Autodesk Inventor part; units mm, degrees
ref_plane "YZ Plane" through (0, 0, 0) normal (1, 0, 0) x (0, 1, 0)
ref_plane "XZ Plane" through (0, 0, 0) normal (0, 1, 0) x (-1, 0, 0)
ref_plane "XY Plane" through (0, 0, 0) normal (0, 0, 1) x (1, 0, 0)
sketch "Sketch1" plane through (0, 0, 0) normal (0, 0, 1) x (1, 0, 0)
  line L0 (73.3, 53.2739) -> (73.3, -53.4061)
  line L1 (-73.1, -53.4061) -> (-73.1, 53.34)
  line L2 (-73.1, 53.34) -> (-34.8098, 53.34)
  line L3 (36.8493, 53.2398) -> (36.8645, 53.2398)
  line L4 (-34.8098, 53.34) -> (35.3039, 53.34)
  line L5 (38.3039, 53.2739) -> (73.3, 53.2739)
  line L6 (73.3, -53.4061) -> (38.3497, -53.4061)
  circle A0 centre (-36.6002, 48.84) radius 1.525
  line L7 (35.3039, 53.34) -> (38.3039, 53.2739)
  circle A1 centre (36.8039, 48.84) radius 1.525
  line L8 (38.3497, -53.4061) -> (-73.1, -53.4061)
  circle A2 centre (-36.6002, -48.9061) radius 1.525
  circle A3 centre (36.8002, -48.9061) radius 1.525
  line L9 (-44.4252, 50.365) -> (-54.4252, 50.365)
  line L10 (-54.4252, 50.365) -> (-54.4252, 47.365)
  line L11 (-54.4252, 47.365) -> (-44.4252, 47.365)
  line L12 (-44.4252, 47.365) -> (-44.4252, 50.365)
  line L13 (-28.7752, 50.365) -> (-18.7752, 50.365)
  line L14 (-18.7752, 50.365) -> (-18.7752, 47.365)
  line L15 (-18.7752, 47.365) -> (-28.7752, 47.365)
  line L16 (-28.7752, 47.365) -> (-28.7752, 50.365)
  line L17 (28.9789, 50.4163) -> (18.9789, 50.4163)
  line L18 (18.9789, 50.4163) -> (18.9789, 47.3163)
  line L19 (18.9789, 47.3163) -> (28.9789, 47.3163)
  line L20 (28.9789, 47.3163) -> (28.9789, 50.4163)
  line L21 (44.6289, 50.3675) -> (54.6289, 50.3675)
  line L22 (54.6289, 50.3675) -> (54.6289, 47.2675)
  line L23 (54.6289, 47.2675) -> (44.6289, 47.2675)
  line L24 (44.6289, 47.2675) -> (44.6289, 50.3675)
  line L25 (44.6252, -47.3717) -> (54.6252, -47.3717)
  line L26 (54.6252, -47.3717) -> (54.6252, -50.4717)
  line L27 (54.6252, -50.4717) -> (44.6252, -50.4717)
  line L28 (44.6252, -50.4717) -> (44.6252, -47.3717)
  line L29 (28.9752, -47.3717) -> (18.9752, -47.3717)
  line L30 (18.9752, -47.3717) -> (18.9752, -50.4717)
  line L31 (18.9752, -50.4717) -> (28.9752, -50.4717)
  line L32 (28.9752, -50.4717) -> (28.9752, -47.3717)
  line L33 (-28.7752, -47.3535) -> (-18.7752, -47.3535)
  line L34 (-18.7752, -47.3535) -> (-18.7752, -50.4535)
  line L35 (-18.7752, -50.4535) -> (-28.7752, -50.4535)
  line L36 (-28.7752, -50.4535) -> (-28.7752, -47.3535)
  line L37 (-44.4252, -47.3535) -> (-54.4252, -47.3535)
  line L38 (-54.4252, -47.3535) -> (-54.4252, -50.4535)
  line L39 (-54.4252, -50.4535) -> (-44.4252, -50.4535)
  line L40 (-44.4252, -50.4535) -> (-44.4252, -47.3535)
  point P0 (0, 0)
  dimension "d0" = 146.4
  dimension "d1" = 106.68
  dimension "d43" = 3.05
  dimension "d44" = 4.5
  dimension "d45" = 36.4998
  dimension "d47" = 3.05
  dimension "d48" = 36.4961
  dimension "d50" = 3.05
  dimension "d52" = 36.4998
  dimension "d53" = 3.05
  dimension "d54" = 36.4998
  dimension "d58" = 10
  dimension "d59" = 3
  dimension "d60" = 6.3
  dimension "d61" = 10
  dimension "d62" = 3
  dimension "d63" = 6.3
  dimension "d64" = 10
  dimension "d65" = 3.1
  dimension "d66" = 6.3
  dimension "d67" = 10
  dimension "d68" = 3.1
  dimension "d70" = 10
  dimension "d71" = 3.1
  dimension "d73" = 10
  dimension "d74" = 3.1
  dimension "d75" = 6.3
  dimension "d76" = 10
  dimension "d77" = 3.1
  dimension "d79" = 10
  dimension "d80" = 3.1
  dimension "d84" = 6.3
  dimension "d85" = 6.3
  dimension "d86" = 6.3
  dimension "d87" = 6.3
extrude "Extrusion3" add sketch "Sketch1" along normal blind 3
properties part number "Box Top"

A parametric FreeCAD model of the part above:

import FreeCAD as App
import Part
import Sketcher

V = App.Vector
Q = App.Units.Quantity

doc = App.newDocument("Part")
body = doc.addObject("PartDesign::Body", "Body")

sketch1 = doc.addObject("Sketcher::SketchObject", "Sketch")
body.addObject(sketch1)
sketch1.AttachmentSupport = (doc.XY_Plane, [""])
sketch1.MapMode = "FlatFace"
sketch1.addGeometry([
    Part.LineSegment(V(73.3, -53.4, 0), V(73.3, 53.3, 0)),
    Part.LineSegment(V(73.3, 53.3, 0), V(38.3, 53.3, 0)),
    Part.LineSegment(V(38.3, 53.3, 0), V(35.3, 53.3, 0)),
    Part.LineSegment(V(35.3, 53.3, 0), V(-73.1, 53.3, 0)),
    Part.LineSegment(V(-73.1, 53.3, 0), V(-73.1, -53.4, 0)),
    Part.LineSegment(V(-73.1, -53.4, 0), V(73.3, -53.4, 0)),
    Part.LineSegment(V(-54.4, -47.4, 0), V(-44.4, -47.4, 0)),
    Part.LineSegment(V(-44.4, -47.4, 0), V(-44.4, -50.5, 0)),
    Part.LineSegment(V(-44.4, -50.5, 0), V(-54.4, -50.5, 0)),
    Part.LineSegment(V(-54.4, -50.5, 0), V(-54.4, -47.4, 0)),
    Part.Circle(V(-36.6, -48.9, 0), V(0, 0, 1), 1.5),
    Part.LineSegment(V(-28.8, -50.5, 0), V(-28.8, -47.4, 0)),
    Part.LineSegment(V(-28.8, -47.4, 0), V(-18.8, -47.4, 0)),
    Part.LineSegment(V(-18.8, -47.4, 0), V(-18.8, -50.5, 0)),
    Part.LineSegment(V(-18.8, -50.5, 0), V(-28.8, -50.5, 0)),
    Part.LineSegment(V(19, -47.4, 0), V(29, -47.4, 0)),
    Part.LineSegment(V(29, -47.4, 0), V(29, -50.5, 0)),
    Part.LineSegment(V(29, -50.5, 0), V(19, -50.5, 0)),
    Part.LineSegment(V(19, -50.5, 0), V(19, -47.4, 0)),
    Part.Circle(V(36.8, -48.9, 0), V(0, 0, 1), 1.5),
    Part.LineSegment(V(44.6, -50.5, 0), V(44.6, -47.4, 0)),
    Part.LineSegment(V(44.6, -47.4, 0), V(54.6, -47.4, 0)),
    Part.LineSegment(V(54.6, -47.4, 0), V(54.6, -50.5, 0)),
    Part.LineSegment(V(54.6, -50.5, 0), V(44.6, -50.5, 0)),
    Part.LineSegment(V(-54.4, 50.4, 0), V(-44.4, 50.4, 0)),
    Part.LineSegment(V(-44.4, 50.4, 0), V(-44.4, 47.4, 0)),
    Part.LineSegment(V(-44.4, 47.4, 0), V(-54.4, 47.4, 0)),
    Part.LineSegment(V(-54.4, 47.4, 0), V(-54.4, 50.4, 0)),
    Part.Circle(V(-36.6, 48.8, 0), V(0, 0, 1), 1.5),
    Part.LineSegment(V(-28.8, 47.4, 0), V(-28.8, 50.4, 0)),
    Part.LineSegment(V(-28.8, 50.4, 0), V(-18.8, 50.4, 0)),
    Part.LineSegment(V(-18.8, 50.4, 0), V(-18.8, 47.4, 0)),
    Part.LineSegment(V(-18.8, 47.4, 0), V(-28.8, 47.4, 0)),
    Part.LineSegment(V(19, 50.4, 0), V(29, 50.4, 0)),
    Part.LineSegment(V(29, 50.4, 0), V(29, 47.3, 0)),
    Part.LineSegment(V(29, 47.3, 0), V(19, 47.3, 0)),
    Part.LineSegment(V(19, 47.3, 0), V(19, 50.4, 0)),
    Part.Circle(V(36.8, 48.8, 0), V(0, 0, 1), 1.5),
    Part.LineSegment(V(44.6, 47.3, 0), V(44.6, 50.4, 0)),
    Part.LineSegment(V(44.6, 50.4, 0), V(54.6, 50.4, 0)),
    Part.LineSegment(V(54.6, 50.4, 0), V(54.6, 47.3, 0)),
    Part.LineSegment(V(54.6, 47.3, 0), V(44.6, 47.3, 0)),
], False)
sketch1.addConstraint([
    Sketcher.Constraint("Coincident", 0, 2, 1, 1),
    Sketcher.Constraint("Coincident", 1, 2, 2, 1),
    Sketcher.Constraint("Coincident", 2, 2, 3, 1),
    Sketcher.Constraint("Coincident", 3, 2, 4, 1),
    Sketcher.Constraint("Coincident", 4, 2, 5, 1),
    Sketcher.Constraint("Coincident", 5, 2, 0, 1),
    Sketcher.Constraint("Coincident", 6, 2, 7, 1),
    Sketcher.Constraint("Coincident", 7, 2, 8, 1),
    Sketcher.Constraint("Coincident", 8, 2, 9, 1),
    Sketcher.Constraint("Coincident", 9, 2, 6, 1),
    Sketcher.Constraint("Coincident", 11, 2, 12, 1),
    Sketcher.Constraint("Coincident", 12, 2, 13, 1),
    Sketcher.Constraint("Coincident", 13, 2, 14, 1),
    Sketcher.Constraint("Coincident", 14, 2, 11, 1),
    Sketcher.Constraint("Coincident", 15, 2, 16, 1),
    Sketcher.Constraint("Coincident", 16, 2, 17, 1),
    Sketcher.Constraint("Coincident", 17, 2, 18, 1),
    Sketcher.Constraint("Coincident", 18, 2, 15, 1),
    Sketcher.Constraint("Coincident", 20, 2, 21, 1),
    Sketcher.Constraint("Coincident", 21, 2, 22, 1),
    Sketcher.Constraint("Coincident", 22, 2, 23, 1),
    Sketcher.Constraint("Coincident", 23, 2, 20, 1),
    Sketcher.Constraint("Coincident", 24, 2, 25, 1),
    Sketcher.Constraint("Coincident", 25, 2, 26, 1),
    Sketcher.Constraint("Coincident", 26, 2, 27, 1),
    Sketcher.Constraint("Coincident", 27, 2, 24, 1),
    Sketcher.Constraint("Coincident", 29, 2, 30, 1),
    Sketcher.Constraint("Coincident", 30, 2, 31, 1),
    Sketcher.Constraint("Coincident", 31, 2, 32, 1),
    Sketcher.Constraint("Coincident", 32, 2, 29, 1),
    Sketcher.Constraint("Coincident", 33, 2, 34, 1),
    Sketcher.Constraint("Coincident", 34, 2, 35, 1),
    Sketcher.Constraint("Coincident", 35, 2, 36, 1),
    Sketcher.Constraint("Coincident", 36, 2, 33, 1),
    Sketcher.Constraint("Coincident", 38, 2, 39, 1),
    Sketcher.Constraint("Coincident", 39, 2, 40, 1),
    Sketcher.Constraint("Coincident", 40, 2, 41, 1),
    Sketcher.Constraint("Coincident", 41, 2, 38, 1),
    Sketcher.Constraint("Vertical", 0),
    Sketcher.Constraint("Horizontal", 1),
    Sketcher.Constraint("Horizontal", 3),
    Sketcher.Constraint("Vertical", 4),
    Sketcher.Constraint("Horizontal", 5),
    Sketcher.Constraint("Horizontal", 6),
    Sketcher.Constraint("Vertical", 7),
    Sketcher.Constraint("Horizontal", 8),
    Sketcher.Constraint("Vertical", 9),
    Sketcher.Constraint("Vertical", 11),
    Sketcher.Constraint("Horizontal", 12),
    Sketcher.Constraint("Vertical", 13),
    Sketcher.Constraint("Horizontal", 14),
    Sketcher.Constraint("Horizontal", 15),
    Sketcher.Constraint("Vertical", 16),
    Sketcher.Constraint("Horizontal", 17),
    Sketcher.Constraint("Vertical", 18),
    Sketcher.Constraint("Vertical", 20),
    Sketcher.Constraint("Horizontal", 21),
    Sketcher.Constraint("Vertical", 22),
    Sketcher.Constraint("Horizontal", 23),
    Sketcher.Constraint("Horizontal", 24),
    Sketcher.Constraint("Vertical", 25),
    Sketcher.Constraint("Horizontal", 26),
    Sketcher.Constraint("Vertical", 27),
    Sketcher.Constraint("Vertical", 29),
    Sketcher.Constraint("Horizontal", 30),
    Sketcher.Constraint("Vertical", 31),
    Sketcher.Constraint("Horizontal", 32),
    Sketcher.Constraint("Horizontal", 33),
    Sketcher.Constraint("Vertical", 34),
    Sketcher.Constraint("Horizontal", 35),
    Sketcher.Constraint("Vertical", 36),
    Sketcher.Constraint("Vertical", 38),
    Sketcher.Constraint("Horizontal", 39),
    Sketcher.Constraint("Vertical", 40),
    Sketcher.Constraint("Horizontal", 41),
    Sketcher.Constraint("Equal", 10, 19),
    Sketcher.Constraint("Equal", 19, 28),
    Sketcher.Constraint("Equal", 28, 37),
    Sketcher.Constraint("Horizontal", 10, 3, 19, 3),
    Sketcher.Constraint("Horizontal", 28, 3, 37, 3),
    Sketcher.Constraint("Horizontal", 9, 2, 11, 2),
    Sketcher.Constraint("Horizontal", 8, 2, 13, 2),
    Sketcher.Constraint("Horizontal", 18, 2, 20, 2),
    Sketcher.Constraint("Horizontal", 17, 2, 22, 2),
    Sketcher.Constraint("Horizontal", 27, 2, 29, 2),
    Sketcher.Constraint("Horizontal", 26, 2, 31, 2),
    Sketcher.Constraint("Vertical", 10, 3, 28, 3),
    Sketcher.Constraint("Vertical", 7, 2, 24, 2),
    Sketcher.Constraint("Vertical", 9, 2, 26, 2),
    Sketcher.Constraint("Vertical", 14, 2, 29, 2),
    Sketcher.Constraint("Vertical", 13, 2, 30, 2),
    Sketcher.Constraint("Equal", 8, 12),
    Sketcher.Constraint("Equal", 14, 15),
    Sketcher.Constraint("Equal", 17, 21),
    Sketcher.Constraint("Equal", 32, 33),
    Sketcher.Constraint("Equal", 35, 39),
    Sketcher.Constraint("Equal", 13, 16),
    Sketcher.Constraint("Equal", 22, 34),
    Sketcher.Constraint("Equal", 36, 38),
    Sketcher.Constraint("Diameter", 10, Q("3.05 mm")),
    Sketcher.Constraint("DistanceX", 6, 1, 6, 2, Q("10 mm")),
    Sketcher.Constraint("DistanceY", 25, 2, 25, 1, Q("3 mm")),
    Sketcher.Constraint("DistanceX", 5, 1, 5, 2, Q("146.4 mm")),
    Sketcher.Constraint("DistanceY", 7, 2, 7, 1, Q("3.1 mm")),
    Sketcher.Constraint("DistanceX", 2, 2, 1, 2, Q("3 mm")),
    Sketcher.Constraint("DistanceY", 0, 1, 0, 2, Q("106.68 mm")),
    Sketcher.Constraint("DistanceY", 37, 3, 2, 2, Q("4.5 mm")),
    Sketcher.Constraint("DistanceY", 4, 2, 10, 3, Q("4.5 mm")),
    Sketcher.Constraint("DistanceX", 37, 3, 0, 2, Q("36.496 mm")),
    Sketcher.Constraint("DistanceX", -1, 1, 0, 2, Q("73.3 mm")),
    Sketcher.Constraint("DistanceX", 19, 3, 0, 2, Q("36.4998 mm")),
    Sketcher.Constraint("DistanceX", 37, 3, 1, 2, Q("1.5 mm")),
    Sketcher.Constraint("DistanceX", 3, 2, 28, 3, Q("36.4998 mm")),
    Sketcher.Constraint("DistanceY", 4, 2, 4, 1, Q("106.746 mm")),
    Sketcher.Constraint("DistanceY", -1, 1, 28, 3, Q("48.84 mm")),
    Sketcher.Constraint("DistanceX", 6, 2, 11, 2, Q("15.65 mm")),
    Sketcher.Constraint("DistanceX", 15, 2, 20, 2, Q("15.65 mm")),
    Sketcher.Constraint("DistanceX", 33, 2, 38, 2, Q("15.65 mm")),
    Sketcher.Constraint("DistanceY", -1, 1, 24, 2, Q("50.365 mm")),
    Sketcher.Constraint("DistanceX", -1, 1, 33, 2, Q("28.979 mm")),
    Sketcher.Constraint("DistanceX", 6, 2, 10, 3, Q("7.825 mm")),
    Sketcher.Constraint("DistanceX", 15, 2, 19, 3, Q("7.825 mm")),
    Sketcher.Constraint("DistanceY", 6, 2, -1, 1, Q("47.3535 mm")),
    Sketcher.Constraint("DistanceY", 15, 2, -1, 1, Q("47.3717 mm")),
    Sketcher.Constraint("DistanceY", -1, 1, 33, 2, Q("50.4163 mm")),
    Sketcher.Constraint("DistanceY", -1, 1, 38, 2, Q("50.3675 mm")),
])
pad1 = doc.addObject("PartDesign::Pad", "Pad")
body.addObject(pad1)
pad1.Profile = sketch1
pad1.Length = 3

doc.recompute()
